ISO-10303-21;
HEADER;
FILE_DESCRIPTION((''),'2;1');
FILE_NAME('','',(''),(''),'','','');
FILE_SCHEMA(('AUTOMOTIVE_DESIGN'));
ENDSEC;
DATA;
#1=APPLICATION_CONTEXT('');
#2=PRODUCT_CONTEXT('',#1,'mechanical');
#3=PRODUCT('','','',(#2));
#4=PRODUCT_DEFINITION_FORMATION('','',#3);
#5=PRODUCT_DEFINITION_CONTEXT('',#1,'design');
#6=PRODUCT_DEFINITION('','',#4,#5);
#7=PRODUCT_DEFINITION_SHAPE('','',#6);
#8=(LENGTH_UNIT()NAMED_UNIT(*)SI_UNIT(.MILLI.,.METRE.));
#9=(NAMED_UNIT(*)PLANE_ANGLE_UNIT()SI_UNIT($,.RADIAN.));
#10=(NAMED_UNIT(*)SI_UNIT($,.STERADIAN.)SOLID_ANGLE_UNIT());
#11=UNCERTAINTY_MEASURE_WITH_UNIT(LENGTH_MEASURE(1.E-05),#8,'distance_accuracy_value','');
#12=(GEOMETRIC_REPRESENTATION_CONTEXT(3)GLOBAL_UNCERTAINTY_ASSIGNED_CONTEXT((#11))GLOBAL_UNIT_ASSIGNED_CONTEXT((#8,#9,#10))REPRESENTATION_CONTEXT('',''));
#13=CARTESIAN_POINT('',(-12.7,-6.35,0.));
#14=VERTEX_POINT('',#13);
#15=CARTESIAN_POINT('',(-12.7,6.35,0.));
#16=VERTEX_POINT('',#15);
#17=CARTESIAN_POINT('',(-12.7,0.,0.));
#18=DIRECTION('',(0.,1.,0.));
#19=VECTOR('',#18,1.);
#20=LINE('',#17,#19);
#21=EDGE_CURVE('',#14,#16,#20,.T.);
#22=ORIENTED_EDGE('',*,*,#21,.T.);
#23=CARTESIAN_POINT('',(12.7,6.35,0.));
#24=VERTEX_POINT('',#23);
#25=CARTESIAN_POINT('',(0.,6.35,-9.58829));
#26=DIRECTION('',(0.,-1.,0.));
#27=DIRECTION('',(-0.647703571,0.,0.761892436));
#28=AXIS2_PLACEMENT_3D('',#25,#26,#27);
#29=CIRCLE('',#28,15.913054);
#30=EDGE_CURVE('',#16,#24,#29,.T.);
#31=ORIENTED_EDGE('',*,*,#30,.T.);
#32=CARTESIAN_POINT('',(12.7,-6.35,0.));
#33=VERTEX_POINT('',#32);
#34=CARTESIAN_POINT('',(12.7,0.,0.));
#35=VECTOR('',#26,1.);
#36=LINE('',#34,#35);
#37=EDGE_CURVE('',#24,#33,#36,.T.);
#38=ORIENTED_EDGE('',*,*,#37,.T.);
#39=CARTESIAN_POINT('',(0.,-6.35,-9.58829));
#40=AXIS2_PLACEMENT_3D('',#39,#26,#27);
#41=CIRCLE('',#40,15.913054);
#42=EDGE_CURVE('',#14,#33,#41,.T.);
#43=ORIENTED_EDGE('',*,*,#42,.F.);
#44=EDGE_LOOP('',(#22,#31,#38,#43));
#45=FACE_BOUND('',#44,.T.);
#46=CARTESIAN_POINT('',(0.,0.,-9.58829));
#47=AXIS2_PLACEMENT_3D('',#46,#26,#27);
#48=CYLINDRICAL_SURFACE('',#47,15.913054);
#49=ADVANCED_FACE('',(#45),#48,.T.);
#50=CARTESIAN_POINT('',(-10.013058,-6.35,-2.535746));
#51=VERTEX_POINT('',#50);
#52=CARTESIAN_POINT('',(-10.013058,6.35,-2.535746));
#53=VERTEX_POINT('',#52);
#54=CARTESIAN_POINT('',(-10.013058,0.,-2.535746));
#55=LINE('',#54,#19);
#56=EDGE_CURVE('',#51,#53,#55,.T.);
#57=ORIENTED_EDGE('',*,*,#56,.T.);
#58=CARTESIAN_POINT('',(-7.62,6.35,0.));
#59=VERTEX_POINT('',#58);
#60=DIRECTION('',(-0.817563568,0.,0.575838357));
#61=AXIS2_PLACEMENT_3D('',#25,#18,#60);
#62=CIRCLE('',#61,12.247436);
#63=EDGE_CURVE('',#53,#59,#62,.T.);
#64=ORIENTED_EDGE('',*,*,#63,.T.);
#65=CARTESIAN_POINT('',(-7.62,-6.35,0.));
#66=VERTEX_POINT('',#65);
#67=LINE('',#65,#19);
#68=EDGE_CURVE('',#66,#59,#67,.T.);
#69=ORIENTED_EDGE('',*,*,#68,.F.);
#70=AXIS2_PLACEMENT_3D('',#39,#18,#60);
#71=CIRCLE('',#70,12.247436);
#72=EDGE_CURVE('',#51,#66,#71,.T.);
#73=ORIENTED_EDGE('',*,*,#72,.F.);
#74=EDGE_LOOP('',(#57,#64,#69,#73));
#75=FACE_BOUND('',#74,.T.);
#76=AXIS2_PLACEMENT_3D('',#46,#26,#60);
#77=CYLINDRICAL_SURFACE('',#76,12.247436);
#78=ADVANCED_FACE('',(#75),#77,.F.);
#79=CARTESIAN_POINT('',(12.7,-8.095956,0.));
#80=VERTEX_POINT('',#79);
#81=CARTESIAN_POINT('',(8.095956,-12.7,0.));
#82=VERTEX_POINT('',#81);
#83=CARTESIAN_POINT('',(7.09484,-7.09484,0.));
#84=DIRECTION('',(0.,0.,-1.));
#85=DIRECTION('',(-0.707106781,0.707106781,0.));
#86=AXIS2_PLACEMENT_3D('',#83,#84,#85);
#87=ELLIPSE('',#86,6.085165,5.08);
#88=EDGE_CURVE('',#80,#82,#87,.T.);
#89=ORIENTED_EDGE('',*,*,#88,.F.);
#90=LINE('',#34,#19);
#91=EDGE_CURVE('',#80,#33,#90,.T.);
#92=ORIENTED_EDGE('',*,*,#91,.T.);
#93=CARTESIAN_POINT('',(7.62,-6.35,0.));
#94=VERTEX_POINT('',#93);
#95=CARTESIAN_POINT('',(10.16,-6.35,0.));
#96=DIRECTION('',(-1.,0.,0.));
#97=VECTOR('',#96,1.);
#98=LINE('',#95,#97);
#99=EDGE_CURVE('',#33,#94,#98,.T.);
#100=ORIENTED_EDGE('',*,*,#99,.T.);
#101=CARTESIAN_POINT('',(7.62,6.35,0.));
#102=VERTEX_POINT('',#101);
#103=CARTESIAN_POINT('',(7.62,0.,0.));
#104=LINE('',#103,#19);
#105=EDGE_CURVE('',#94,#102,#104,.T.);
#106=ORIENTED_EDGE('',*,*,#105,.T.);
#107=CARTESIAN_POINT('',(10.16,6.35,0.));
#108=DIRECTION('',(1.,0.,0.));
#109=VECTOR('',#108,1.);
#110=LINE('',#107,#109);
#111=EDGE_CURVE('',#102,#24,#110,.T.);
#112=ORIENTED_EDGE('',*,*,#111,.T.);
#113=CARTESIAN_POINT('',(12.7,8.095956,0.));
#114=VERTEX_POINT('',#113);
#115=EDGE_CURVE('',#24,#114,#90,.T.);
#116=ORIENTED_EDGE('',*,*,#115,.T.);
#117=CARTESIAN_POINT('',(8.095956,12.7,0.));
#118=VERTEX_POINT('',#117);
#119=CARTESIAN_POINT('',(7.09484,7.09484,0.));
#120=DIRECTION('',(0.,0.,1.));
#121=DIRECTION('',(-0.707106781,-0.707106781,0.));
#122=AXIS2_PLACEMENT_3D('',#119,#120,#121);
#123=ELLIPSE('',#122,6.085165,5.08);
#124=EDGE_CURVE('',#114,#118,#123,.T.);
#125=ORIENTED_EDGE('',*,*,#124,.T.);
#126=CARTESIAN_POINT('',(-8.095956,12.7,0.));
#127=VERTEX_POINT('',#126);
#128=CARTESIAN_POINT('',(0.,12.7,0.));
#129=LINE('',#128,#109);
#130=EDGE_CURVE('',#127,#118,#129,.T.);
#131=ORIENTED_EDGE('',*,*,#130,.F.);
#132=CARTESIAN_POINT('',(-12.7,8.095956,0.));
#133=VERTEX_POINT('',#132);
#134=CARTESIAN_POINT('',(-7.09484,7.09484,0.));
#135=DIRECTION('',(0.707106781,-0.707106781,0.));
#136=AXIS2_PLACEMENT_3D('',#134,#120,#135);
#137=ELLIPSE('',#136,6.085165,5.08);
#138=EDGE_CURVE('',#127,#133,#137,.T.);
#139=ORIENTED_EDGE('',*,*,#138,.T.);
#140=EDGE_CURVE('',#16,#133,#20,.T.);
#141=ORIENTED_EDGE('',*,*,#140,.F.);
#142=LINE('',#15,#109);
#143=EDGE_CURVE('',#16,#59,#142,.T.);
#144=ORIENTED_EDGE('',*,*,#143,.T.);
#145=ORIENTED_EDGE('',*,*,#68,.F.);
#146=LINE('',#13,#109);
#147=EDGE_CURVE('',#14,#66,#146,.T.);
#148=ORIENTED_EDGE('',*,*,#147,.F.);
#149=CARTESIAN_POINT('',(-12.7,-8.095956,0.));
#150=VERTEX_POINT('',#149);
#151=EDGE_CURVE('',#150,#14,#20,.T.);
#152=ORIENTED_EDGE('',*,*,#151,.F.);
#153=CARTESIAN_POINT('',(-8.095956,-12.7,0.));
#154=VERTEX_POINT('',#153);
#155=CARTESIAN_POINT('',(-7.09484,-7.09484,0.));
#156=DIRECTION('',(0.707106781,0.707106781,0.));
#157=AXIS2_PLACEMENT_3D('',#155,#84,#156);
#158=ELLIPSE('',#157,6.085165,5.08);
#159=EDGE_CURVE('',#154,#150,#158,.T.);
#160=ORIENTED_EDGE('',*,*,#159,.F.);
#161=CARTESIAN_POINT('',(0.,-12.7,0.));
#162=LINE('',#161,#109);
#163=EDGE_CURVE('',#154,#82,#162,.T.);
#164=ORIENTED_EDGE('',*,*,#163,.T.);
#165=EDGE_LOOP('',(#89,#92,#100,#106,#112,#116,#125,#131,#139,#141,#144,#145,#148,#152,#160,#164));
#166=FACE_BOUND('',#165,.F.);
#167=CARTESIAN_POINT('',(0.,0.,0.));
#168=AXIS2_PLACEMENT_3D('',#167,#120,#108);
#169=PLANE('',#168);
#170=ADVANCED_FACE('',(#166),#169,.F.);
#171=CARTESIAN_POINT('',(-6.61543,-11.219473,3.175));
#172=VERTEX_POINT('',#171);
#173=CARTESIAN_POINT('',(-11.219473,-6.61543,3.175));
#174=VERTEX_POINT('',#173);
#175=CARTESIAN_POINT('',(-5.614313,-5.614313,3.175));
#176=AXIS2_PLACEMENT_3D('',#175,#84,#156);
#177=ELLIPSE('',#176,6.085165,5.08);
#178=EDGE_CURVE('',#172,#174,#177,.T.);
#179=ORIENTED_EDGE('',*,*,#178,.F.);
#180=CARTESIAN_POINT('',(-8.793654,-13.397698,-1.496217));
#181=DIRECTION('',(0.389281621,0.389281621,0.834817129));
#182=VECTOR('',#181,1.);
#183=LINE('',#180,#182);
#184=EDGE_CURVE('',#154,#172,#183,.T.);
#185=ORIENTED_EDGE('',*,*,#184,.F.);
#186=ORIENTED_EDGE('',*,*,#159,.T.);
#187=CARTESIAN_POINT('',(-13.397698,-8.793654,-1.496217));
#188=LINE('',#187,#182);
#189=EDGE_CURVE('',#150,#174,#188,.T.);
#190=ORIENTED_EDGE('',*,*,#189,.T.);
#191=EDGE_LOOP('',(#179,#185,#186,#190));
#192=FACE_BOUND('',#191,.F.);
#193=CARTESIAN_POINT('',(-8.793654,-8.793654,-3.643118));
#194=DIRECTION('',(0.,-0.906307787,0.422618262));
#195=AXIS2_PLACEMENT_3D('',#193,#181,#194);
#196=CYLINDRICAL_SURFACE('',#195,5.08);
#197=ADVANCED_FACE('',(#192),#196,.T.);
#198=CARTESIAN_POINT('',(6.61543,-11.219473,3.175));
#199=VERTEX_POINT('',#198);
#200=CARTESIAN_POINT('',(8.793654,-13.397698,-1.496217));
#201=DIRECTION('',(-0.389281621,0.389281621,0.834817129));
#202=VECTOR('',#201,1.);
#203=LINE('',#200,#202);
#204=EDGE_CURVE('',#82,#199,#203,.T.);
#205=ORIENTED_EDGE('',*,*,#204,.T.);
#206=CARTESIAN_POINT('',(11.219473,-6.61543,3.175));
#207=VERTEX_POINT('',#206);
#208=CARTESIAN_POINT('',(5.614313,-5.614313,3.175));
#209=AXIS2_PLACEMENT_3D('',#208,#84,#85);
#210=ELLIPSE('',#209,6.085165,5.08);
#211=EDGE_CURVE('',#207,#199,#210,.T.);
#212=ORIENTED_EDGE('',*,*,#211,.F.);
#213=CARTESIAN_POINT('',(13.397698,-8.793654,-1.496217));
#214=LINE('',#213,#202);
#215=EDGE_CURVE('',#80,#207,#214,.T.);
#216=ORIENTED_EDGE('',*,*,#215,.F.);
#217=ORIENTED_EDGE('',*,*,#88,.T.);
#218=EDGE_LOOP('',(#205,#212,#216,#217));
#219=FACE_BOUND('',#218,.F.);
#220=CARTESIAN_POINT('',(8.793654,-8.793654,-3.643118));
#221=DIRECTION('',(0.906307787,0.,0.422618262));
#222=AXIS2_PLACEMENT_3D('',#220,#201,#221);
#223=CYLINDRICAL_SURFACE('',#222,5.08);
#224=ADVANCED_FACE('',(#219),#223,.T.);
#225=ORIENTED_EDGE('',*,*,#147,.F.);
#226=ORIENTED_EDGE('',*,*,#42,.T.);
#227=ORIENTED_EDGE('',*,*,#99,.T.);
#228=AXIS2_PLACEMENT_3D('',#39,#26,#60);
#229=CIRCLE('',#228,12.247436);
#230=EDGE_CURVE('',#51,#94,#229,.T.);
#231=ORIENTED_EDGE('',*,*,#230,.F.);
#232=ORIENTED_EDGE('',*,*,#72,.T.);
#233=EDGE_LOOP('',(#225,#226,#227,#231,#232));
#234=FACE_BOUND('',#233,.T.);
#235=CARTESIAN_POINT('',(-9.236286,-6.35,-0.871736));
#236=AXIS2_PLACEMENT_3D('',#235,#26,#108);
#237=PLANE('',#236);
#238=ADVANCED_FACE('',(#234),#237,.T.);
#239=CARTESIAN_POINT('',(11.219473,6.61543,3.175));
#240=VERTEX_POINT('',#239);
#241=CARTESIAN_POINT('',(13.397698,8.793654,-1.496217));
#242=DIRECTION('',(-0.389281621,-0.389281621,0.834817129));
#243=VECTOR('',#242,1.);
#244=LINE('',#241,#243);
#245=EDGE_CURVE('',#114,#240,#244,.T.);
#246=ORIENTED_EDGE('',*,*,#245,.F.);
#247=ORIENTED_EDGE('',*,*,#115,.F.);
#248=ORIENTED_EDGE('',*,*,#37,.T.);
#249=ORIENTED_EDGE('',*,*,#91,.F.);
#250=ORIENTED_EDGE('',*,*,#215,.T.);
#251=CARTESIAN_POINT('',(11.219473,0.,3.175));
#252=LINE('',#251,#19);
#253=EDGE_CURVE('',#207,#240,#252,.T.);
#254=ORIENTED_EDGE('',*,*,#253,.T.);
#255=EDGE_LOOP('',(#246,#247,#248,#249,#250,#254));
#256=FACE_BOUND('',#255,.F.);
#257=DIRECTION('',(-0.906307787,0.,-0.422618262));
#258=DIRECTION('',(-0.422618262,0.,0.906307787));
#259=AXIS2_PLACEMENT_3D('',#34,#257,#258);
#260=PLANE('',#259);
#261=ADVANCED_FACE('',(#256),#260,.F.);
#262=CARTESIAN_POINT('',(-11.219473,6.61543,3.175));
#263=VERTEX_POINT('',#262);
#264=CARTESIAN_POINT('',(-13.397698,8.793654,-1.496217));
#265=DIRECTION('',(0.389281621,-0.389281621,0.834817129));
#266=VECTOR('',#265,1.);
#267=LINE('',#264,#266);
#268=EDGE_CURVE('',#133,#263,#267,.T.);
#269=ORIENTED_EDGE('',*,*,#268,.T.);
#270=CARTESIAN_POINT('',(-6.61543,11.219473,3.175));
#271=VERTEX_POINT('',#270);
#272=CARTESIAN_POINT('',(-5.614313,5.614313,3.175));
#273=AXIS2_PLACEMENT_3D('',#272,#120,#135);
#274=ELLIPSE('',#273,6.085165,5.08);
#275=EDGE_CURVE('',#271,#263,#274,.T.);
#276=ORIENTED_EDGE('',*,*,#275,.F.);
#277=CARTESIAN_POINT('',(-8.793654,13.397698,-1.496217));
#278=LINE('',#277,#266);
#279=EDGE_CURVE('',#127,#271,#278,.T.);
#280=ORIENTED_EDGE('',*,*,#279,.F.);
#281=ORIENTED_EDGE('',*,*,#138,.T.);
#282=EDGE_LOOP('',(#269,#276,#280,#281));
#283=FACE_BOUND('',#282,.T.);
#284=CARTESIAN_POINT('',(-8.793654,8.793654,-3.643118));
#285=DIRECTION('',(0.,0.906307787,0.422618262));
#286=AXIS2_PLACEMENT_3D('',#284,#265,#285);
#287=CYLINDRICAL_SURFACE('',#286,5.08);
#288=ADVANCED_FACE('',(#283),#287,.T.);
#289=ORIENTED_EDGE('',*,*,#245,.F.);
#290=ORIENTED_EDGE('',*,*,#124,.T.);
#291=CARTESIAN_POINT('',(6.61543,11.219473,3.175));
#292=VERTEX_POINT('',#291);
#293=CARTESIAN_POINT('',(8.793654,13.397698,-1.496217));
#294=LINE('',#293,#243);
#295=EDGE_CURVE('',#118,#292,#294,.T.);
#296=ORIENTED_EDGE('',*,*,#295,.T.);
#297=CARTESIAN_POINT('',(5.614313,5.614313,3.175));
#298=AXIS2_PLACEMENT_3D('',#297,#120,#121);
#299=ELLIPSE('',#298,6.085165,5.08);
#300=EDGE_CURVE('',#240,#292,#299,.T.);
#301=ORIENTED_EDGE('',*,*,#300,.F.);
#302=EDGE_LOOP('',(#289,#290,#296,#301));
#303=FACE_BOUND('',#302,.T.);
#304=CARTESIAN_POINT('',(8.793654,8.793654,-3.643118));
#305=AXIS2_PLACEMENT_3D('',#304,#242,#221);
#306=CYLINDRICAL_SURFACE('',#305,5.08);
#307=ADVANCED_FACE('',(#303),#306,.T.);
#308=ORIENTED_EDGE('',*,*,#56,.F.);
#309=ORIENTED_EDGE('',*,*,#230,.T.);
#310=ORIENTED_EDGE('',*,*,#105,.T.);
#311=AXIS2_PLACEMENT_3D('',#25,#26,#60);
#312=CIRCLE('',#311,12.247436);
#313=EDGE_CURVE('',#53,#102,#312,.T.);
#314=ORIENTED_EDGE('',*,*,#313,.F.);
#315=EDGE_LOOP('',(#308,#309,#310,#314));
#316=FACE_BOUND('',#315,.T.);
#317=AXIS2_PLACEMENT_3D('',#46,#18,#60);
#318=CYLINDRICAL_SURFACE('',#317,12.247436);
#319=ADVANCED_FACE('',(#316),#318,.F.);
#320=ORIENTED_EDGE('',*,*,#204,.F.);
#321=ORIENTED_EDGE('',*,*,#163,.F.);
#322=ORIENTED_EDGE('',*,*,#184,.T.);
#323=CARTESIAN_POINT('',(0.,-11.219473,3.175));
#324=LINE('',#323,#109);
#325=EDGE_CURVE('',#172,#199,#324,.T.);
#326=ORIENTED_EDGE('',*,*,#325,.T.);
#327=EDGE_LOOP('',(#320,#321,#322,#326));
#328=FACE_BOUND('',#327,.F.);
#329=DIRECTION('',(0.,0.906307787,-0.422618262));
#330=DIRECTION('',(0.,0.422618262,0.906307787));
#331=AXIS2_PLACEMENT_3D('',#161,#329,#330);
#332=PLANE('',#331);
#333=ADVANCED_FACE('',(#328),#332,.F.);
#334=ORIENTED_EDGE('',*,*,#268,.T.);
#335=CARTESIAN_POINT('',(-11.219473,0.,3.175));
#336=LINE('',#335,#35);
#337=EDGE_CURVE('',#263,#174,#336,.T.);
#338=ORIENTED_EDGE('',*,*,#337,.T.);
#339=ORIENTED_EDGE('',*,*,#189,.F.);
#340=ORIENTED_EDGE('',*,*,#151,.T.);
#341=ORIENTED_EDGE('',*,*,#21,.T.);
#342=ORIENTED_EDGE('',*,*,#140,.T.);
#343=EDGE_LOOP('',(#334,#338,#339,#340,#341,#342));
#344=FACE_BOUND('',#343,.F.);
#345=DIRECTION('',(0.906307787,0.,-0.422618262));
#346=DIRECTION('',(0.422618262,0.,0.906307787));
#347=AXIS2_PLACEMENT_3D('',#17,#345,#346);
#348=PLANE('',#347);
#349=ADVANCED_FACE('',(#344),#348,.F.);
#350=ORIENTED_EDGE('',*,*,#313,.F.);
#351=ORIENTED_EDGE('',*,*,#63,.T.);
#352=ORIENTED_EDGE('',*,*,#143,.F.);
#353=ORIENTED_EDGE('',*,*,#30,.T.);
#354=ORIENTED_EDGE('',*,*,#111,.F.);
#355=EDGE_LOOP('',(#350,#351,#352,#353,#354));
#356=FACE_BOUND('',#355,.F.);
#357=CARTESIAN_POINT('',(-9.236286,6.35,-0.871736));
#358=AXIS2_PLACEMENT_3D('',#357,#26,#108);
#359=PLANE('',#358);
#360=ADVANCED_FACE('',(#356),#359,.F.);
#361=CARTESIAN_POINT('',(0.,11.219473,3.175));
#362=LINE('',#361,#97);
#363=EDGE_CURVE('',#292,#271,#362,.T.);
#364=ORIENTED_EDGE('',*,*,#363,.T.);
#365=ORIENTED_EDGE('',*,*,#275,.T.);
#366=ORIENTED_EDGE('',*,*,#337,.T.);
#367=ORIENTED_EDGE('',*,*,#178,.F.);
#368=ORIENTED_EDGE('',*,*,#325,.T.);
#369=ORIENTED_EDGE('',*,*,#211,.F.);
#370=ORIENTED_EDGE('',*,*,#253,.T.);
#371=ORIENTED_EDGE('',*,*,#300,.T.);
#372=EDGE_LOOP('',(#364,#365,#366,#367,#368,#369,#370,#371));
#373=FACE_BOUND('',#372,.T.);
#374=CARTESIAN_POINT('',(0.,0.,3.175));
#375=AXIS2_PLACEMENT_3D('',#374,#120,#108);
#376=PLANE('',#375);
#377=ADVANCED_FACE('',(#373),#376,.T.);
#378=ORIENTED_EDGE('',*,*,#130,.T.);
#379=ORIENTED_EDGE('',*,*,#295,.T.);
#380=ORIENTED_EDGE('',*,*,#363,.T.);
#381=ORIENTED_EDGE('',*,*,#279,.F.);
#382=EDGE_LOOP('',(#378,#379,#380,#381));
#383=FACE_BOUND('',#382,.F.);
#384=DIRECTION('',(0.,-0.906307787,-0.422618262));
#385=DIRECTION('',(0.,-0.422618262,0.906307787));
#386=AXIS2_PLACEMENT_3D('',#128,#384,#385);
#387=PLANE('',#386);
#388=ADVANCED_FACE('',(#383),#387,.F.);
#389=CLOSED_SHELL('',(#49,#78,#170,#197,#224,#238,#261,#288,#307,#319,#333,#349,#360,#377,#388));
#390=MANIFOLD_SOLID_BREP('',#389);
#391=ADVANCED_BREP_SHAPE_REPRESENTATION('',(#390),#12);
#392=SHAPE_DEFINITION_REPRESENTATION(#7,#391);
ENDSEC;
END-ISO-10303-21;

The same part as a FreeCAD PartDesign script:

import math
import FreeCAD as App
import Part
import Sketcher
from FreeCAD import Vector
Q = App.Units.Quantity


def edges_at(feature, points):
    """Names of the edges that pass closest to the given points."""
    edges = feature.Shape.Edges
    near = lambda p: min(range(len(edges)), key=lambda i: edges[i].distToShape(Part.Vertex(*p))[0])
    return sorted({f"Edge{near(p) + 1}" for p in points})


def add_polygon(sketch, points):
    """Adds a closed chain of lines whose ends are joined by coincident constraints."""
    first, n = sketch.GeometryCount, len(points)
    for a, b in zip(points, points[1:] + points[:1]):
        sketch.addGeometry(Part.LineSegment(App.Vector(*a, 0), App.Vector(*b, 0)), False)
    for i in range(n):
        sketch.addConstraint(Sketcher.Constraint("Coincident", first + i, 2, first + (i + 1) % n, 1))

doc = App.newDocument("Part")
body = doc.addObject("PartDesign::Body", "Body")

sketch1 = body.newObject("Sketcher::SketchObject", "Sketch")
sketch1.AttachmentSupport = (doc.getObject("XY_Plane"), [""])
sketch1.MapMode = "FlatFace"
add_polygon(sketch1, [(-13, 13), (-13, -13), (13, -13), (13, 13)])
sketch1.addConstraint([
    Sketcher.Constraint("Vertical", 0),
    Sketcher.Constraint("Horizontal", 1),
    Sketcher.Constraint("Vertical", 2),
    Sketcher.Constraint("Horizontal", 3),
    Sketcher.Constraint("Symmetric", 0, 2, 2, 2, -1, 1),
    Sketcher.Constraint("Equal", 3, 0),
    Sketcher.Constraint("DistanceX", 1, 1, 1, 2, Q("1 in")),
])
pad1 = body.newObject("PartDesign::Pad", "Pad")
pad1.Profile = sketch1
pad1.Length = Q("0.125 in")
pad1.TaperAngle = -25

sketch2 = body.newObject("Sketcher::SketchObject", "Sketch001")
sketch2.AttachmentSupport = (doc.getObject("XY_Plane"), [""])
sketch2.MapMode = "FlatFace"
add_polygon(sketch2, [(8, -6), (8, 6), (13, 6), (13, -6)])
sketch2.addConstraint([
    Sketcher.Constraint("Vertical", 0),
    Sketcher.Constraint("Horizontal", 1),
    Sketcher.Constraint("Vertical", 2),
    Sketcher.Constraint("Horizontal", 3),
    Sketcher.Constraint("DistanceX", 1, 1, 1, 2, Q("0.2 in")),
    Sketcher.Constraint("DistanceY", 0, 1, 0, 2, Q("0.5 in")),
    Sketcher.Constraint("DistanceX", -1, 1, 0, 2, Q("0.3 in")),
    Sketcher.Constraint("DistanceY", -1, 1, 0, 2, Q("0.25 in")),
])

sketch3 = body.newObject("Sketcher::SketchObject", "Sketch002")
sketch3.AttachmentSupport = (doc.getObject("XZ_Plane"), [""])
sketch3.MapMode = "FlatFace"
sketch3.addGeometry(Part.ArcOfCircle(Part.Circle(Vector(0, -10, 0), Vector(0, 0, 1), 14), math.radians(137), math.radians(403)), False)
sketch3.addConstraint([
    Sketcher.Constraint("Symmetric", 0, 1, 0, 2, -1, 1),
    Sketcher.Constraint("PointOnObject", 0, 3, -2),
    Sketcher.Constraint("Radius", 0, Q("0.55 in")),
    Sketcher.Constraint("DistanceX", 0, 1, -1, 1, Q("0.4 in")),
])
doc.recompute()

additivepipe = body.newObject("PartDesign::AdditivePipe", "AdditivePipe")
additivepipe.Profile = sketch2
additivepipe.Spine = (sketch3, ["Edge1"])

sketch4 = body.newObject("Sketcher::SketchObject", "Sketch003")
sketch4.AttachmentSupport = (doc.getObject("XZ_Plane"), [""])
sketch4.MapMode = "FlatFace"
sketch4.addGeometry([
    Part.LineSegment(Vector(-7.6, 0, 0), Vector(-10.2, 0, 0)),
    Part.LineSegment(Vector(-10.2, 0, 0), Vector(-10, -2.5, 0)),
    Part.ArcOfCircle(Part.Circle(Vector(0, -9.6, 0), Vector(0, 0, 1), 12.2), math.radians(128.47), math.radians(144.84)),
], False)
sketch4.addConstraint([
    Sketcher.Constraint("Coincident", 0, 2, 1, 1),
    Sketcher.Constraint("Coincident", 1, 2, 2, 2),
    Sketcher.Constraint("Coincident", 2, 1, 0, 1),
    Sketcher.Constraint("Horizontal", 0),
    Sketcher.Constraint("PointOnObject", 2, 3, -2),
    Sketcher.Constraint("PointOnObject", 0, 2, -1),
    Sketcher.Constraint("DistanceX", 0, 2, 0, 1, Q("0.1 in")),
    Sketcher.Constraint("Distance", 1, Q("0.1 in")),
    Sketcher.Constraint("DistanceX", 0, 2, -1, 1, Q("0.4 in")),
    Sketcher.Constraint("Radius", 2, 12.247436),
])
pad2 = body.newObject("PartDesign::Pad", "Pad001")
pad2.Profile = sketch4
pad2.Length = Q("0.5 in")
pad2.Midplane = True
doc.recompute()

fillet = body.newObject("PartDesign::Fillet", "Fillet")
fillet.Base = (pad2, edges_at(pad2, [
    (-11.96, 11.96, 1.587),
    (11.96, 11.96, 1.587),
    (11.96, -11.96, 1.587),
    (-11.96, -11.96, 1.587),
]))
fillet.Radius = Q("0.2 in")

doc.recompute()
